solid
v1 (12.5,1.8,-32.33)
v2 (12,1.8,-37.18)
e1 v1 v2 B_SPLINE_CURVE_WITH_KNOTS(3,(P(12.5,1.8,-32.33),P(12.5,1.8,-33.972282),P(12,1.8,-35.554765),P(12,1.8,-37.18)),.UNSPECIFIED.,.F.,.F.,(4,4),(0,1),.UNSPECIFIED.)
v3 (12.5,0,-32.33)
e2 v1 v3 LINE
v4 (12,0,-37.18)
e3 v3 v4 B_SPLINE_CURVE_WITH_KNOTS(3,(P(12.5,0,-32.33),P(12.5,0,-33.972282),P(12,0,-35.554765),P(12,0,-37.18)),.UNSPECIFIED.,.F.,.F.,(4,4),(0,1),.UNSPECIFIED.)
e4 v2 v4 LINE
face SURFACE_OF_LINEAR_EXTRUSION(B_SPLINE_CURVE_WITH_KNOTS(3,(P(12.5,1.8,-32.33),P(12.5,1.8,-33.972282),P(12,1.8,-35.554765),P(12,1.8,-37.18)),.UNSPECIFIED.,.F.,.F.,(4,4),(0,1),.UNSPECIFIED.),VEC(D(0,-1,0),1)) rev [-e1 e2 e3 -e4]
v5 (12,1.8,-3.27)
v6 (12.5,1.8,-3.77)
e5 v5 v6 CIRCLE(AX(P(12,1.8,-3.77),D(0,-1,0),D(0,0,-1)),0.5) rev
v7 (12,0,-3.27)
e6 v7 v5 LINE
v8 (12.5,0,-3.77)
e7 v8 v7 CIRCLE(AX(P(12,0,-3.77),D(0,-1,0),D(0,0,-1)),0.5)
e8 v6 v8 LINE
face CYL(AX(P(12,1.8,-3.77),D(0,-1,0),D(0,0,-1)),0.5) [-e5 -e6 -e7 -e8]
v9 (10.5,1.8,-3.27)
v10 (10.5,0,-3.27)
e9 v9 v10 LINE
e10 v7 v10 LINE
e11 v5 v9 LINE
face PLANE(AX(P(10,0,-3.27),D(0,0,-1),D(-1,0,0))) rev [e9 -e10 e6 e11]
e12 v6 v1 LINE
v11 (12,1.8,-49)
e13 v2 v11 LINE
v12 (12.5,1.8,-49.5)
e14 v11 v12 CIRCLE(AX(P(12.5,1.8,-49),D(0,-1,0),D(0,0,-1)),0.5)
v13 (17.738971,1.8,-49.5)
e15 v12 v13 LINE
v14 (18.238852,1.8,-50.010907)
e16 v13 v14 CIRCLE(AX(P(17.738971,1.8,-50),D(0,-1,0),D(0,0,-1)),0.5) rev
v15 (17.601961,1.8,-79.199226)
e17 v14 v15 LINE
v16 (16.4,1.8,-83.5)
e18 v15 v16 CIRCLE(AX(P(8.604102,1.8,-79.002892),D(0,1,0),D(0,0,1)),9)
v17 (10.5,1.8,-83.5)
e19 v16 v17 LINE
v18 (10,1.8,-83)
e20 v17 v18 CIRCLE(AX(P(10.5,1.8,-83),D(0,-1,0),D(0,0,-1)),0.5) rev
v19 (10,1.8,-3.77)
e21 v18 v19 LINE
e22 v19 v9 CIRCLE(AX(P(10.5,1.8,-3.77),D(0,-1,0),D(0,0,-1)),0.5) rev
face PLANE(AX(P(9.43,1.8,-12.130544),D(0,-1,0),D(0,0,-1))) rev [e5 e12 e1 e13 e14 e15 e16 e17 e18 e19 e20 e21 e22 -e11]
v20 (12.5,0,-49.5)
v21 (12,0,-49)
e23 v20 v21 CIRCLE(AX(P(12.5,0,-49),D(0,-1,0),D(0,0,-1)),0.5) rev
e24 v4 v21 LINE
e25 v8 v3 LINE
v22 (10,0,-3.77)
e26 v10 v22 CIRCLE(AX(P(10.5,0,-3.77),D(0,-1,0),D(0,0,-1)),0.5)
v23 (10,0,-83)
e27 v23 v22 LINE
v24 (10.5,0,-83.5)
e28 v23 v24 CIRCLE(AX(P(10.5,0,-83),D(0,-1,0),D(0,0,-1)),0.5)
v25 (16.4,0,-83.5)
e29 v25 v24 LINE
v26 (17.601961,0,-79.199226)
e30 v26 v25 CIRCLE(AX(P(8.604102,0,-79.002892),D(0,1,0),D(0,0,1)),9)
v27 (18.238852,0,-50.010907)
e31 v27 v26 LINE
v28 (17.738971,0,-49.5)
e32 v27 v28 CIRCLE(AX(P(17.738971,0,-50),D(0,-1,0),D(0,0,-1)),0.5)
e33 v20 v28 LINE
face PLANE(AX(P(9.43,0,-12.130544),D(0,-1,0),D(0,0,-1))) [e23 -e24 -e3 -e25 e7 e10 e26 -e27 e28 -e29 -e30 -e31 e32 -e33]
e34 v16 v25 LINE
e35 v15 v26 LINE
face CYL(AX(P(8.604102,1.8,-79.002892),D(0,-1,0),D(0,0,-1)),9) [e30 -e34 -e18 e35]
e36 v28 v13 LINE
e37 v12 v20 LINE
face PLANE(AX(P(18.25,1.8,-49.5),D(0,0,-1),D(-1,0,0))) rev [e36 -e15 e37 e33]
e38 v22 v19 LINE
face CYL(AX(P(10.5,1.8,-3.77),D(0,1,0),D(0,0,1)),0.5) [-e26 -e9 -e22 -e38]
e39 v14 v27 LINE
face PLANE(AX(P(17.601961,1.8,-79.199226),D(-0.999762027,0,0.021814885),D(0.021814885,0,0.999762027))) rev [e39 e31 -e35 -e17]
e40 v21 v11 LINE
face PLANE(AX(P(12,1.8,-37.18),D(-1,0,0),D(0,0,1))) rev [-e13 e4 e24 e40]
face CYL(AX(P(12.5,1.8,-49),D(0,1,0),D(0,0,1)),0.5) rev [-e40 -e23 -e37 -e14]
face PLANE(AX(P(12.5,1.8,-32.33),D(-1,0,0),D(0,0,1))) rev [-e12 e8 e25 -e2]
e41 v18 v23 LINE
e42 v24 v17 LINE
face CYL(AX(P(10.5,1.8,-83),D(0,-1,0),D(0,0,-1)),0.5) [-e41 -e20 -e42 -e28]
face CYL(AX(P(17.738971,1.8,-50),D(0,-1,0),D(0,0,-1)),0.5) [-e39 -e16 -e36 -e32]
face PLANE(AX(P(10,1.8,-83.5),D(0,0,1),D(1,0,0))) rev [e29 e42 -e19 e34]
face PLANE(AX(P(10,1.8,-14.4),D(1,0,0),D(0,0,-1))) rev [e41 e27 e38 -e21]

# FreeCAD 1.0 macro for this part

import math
import FreeCAD as App
import Part
import Sketcher

V = App.Vector


def edges_at(feature, points):
    """Names of the edges that pass closest to the given points."""
    edges = feature.Shape.Edges
    near = lambda p: min(range(len(edges)), key=lambda i: edges[i].distToShape(Part.Vertex(*p))[0])
    return sorted({f"Edge{near(p) + 1}" for p in points})

doc = App.newDocument("Part")
body = doc.addObject("PartDesign::Body", "Body")

sketch1 = body.newObject("Sketcher::SketchObject", "Sketch")
sketch1.AttachmentSupport = (doc.getObject("XZ_Plane"), [""])
sketch1.MapMode = "FlatFace"
sketch1.addGeometry(Part.LineSegment(V(0, -6.5, 0), V(0, -4.5, 0)), False)
sketch1.addGeometry(Part.ArcOfCircle(Part.Circle(V(9.43, -12.130544, 0), V(0, 0, 1), 12.130544), math.radians(90), math.radians(141.020993)), False)
sketch1.addGeometry(Part.ArcOfCircle(Part.Circle(V(9.43, -3.07, 0), V(0, 0, 1), 3.07), math.radians(0), math.radians(90)), False)
sketch1.addGeometry(Part.LineSegment(V(12.5, -3.07, 0), V(12.5, -32.33, 0)), False)
sketch1.addGeometry(Part.BSplineCurve([V(12.5, -32.33, 0), V(12.5, -33.972282, 0), V(12, -35.554765, 0), V(12, -37.18, 0)], [4, 4], [0, 1], False, 3, [1, 1, 1, 1], False), False)
sketch1.addGeometry(Part.LineSegment(V(12, -37.18, 0), V(12, -49.5, 0)), False)
sketch1.addGeometry(Part.LineSegment(V(12, -49.5, 0), V(18.25, -49.5, 0)), False)
sketch1.addGeometry(Part.LineSegment(V(18.25, -49.5, 0), V(17.601961, -79.199226, 0)), False)
sketch1.addGeometry(Part.ArcOfCircle(Part.Circle(V(8.604102, -79.002892, 0), V(0, 0, 1), 9), math.radians(-29.978742), math.radians(-1.25)), False)
sketch1.addGeometry(Part.LineSegment(V(16.4, -83.5, 0), V(10, -83.5, 0)), False)
sketch1.addGeometry(Part.LineSegment(V(10, -83.5, 0), V(10, -14.4, 0)), False)
sketch1.addGeometry(Part.LineSegment(V(10, -14.4, 0), V(6.1, -10.5, 0)), False)
sketch1.addGeometry(Part.LineSegment(V(6.1, -10.5, 0), V(6.1, -6.5, 0)), False)
sketch1.addGeometry(Part.LineSegment(V(6.1, -6.5, 0), V(0, -6.5, 0)), False)
sketch1.addConstraint(Sketcher.Constraint("Block", 4))
sketch1.addConstraint(Sketcher.Constraint("Coincident", 0, 2, 1, 2))
sketch1.addConstraint(Sketcher.Constraint("Coincident", 1, 1, 2, 2))
sketch1.addConstraint(Sketcher.Constraint("Coincident", 2, 1, 3, 1))
sketch1.addConstraint(Sketcher.Constraint("Coincident", 3, 2, 4, 1))
sketch1.addConstraint(Sketcher.Constraint("Coincident", 4, 2, 5, 1))
sketch1.addConstraint(Sketcher.Constraint("Coincident", 5, 2, 6, 1))
sketch1.addConstraint(Sketcher.Constraint("Coincident", 6, 2, 7, 1))
sketch1.addConstraint(Sketcher.Constraint("Coincident", 7, 2, 8, 2))
sketch1.addConstraint(Sketcher.Constraint("Coincident", 8, 1, 9, 1))
sketch1.addConstraint(Sketcher.Constraint("Coincident", 9, 2, 10, 1))
sketch1.addConstraint(Sketcher.Constraint("Coincident", 10, 2, 11, 1))
sketch1.addConstraint(Sketcher.Constraint("Coincident", 11, 2, 12, 1))
sketch1.addConstraint(Sketcher.Constraint("Coincident", 12, 2, 13, 1))
sketch1.addConstraint(Sketcher.Constraint("Coincident", 13, 2, 0, 1))
sketch1.addConstraint(Sketcher.Constraint("Vertical", 0))
sketch1.addConstraint(Sketcher.Constraint("Vertical", 3))
sketch1.addConstraint(Sketcher.Constraint("Vertical", 5))
sketch1.addConstraint(Sketcher.Constraint("Horizontal", 6))
sketch1.addConstraint(Sketcher.Constraint("Horizontal", 9))
sketch1.addConstraint(Sketcher.Constraint("Vertical", 10))
sketch1.addConstraint(Sketcher.Constraint("Vertical", 12))
sketch1.addConstraint(Sketcher.Constraint("Horizontal", 13))
sketch1.addConstraint(Sketcher.Constraint("PointOnObject", 0, 2, -2))
sketch1.addConstraint(Sketcher.Constraint("PointOnObject", 1, 1, -1))
sketch1.addConstraint(Sketcher.Constraint("Radius", 8, 9.0))
sketch1.addConstraint(Sketcher.Constraint("DistanceY", 0, 1, 0, 2, 2.0))
sketch1.addConstraint(Sketcher.Constraint("DistanceY", 12, 1, 12, 2, 4.0))
sketch1.addConstraint(Sketcher.Constraint("Radius", 2, 3.07))
sketch1.addConstraint(Sketcher.Constraint("DistanceX", 9, 2, 9, 1, 6.4))
sketch1.addConstraint(Sketcher.Constraint("DistanceX", 13, 2, 13, 1, 6.1))
sketch1.addConstraint(Sketcher.Constraint("DistanceY", 10, 1, 10, 2, 69.1))
sketch1.addConstraint(Sketcher.Constraint("DistanceX", -1, 1, 9, 2, 10.0))
sketch1.addConstraint(Sketcher.Constraint("DistanceY", 8, 1, 6, 2, 34.0))
sketch1.addConstraint(Sketcher.Constraint("DistanceX", 6, 1, 6, 2, 6.25))
sketch1.addConstraint(Sketcher.Constraint("DistanceY", 3, 2, 3, 1, 29.26))
sketch1.addConstraint(Sketcher.Constraint("DistanceY", 5, 2, 5, 1, 12.32))
sketch1.addConstraint(Sketcher.Constraint("DistanceY", 0, 2, -1, 1, 4.5))
sketch1.addConstraint(Sketcher.Constraint("DistanceX", -1, 1, 1, 3, 9.43))
sketch1.addConstraint(Sketcher.Constraint("DistanceX", -1, 1, 1, 1, 9.43))
sketch1.addConstraint(Sketcher.Constraint("DistanceX", -1, 1, 7, 2, 17.601961))
sketch1.addConstraint(Sketcher.Constraint("DistanceX", 8, 3, 7, 2, 8.997858))
pad1 = body.newObject("PartDesign::Pad", "Pad")
pad1.Profile = sketch1
pad1.Length = 1.8
pad1.Reversed = True
doc.recompute()

fillet = body.newObject("PartDesign::Fillet", "Fillet")
fillet.Base = (pad1, edges_at(pad1, [
    (0, 0.9, -6.5),
    (6.1, 0.9, -6.5),
    (6.1, 0.9, -10.5),
    (10, 0.9, -14.4),
    (10, 0.9, -83.5),
    (18.25, 0.9, -49.5),
    (12, 0.9, -49.5),
]))
fillet.Radius = 0.5

sketch2 = body.newObject("Sketcher::SketchObject", "Sketch001")
sketch2.AttachmentSupport = (doc.getObject("XZ_Plane"), [""])
sketch2.MapMode = "FlatFace"
sketch2.addGeometry(Part.LineSegment(V(7, 2.5, 0), V(7, -0.5, 0)), False)
sketch2.addGeometry(Part.LineSegment(V(7, -0.5, 0), V(11, -0.5, 0)), False)
sketch2.addGeometry(Part.LineSegment(V(11, -0.5, 0), V(11.02, -0.44, 0)), False)
sketch2.addGeometry(Part.LineSegment(V(11.02, -0.44, 0), V(11.82, 1.58, 0)), False)
sketch2.addGeometry(Part.ArcOfCircle(Part.Circle(V(9.5, 2.5, 0), V(0, 0, 1), 2.5), math.radians(-22), math.radians(180)), False)
sketch2.addGeometry(Part.Circle(V(9.5, 2.5, 0), V(0, 0, 1), 1.75), False)
sketch2.addConstraint(Sketcher.Constraint("Coincident", 0, 2, 1, 1))
sketch2.addConstraint(Sketcher.Constraint("Coincident", 1, 2, 2, 1))
sketch2.addConstraint(Sketcher.Constraint("Coincident", 2, 2, 3, 1))
sketch2.addConstraint(Sketcher.Constraint("Tangent", 3, 2, 4, 1))
sketch2.addConstraint(Sketcher.Constraint("Tangent", 4, 2, 0, 1))
sketch2.addConstraint(Sketcher.Constraint("Vertical", 0))
sketch2.addConstraint(Sketcher.Constraint("Horizontal", 1))
sketch2.addConstraint(Sketcher.Constraint("Coincident", 5, 3, 4, 3))
sketch2.addConstraint(Sketcher.Constraint("Parallel", 2, 3))
sketch2.addConstraint(Sketcher.Constraint("Diameter", 5, 3.5))
sketch2.addConstraint(Sketcher.Constraint("Radius", 4, 2.5))
sketch2.addConstraint(Sketcher.Constraint("DistanceX", 1, 1, 1, 2, 4.0))
sketch2.addConstraint(Sketcher.Constraint("DistanceY", 0, 2, 0, 1, 3.0))
sketch2.addConstraint(Sketcher.Constraint("DistanceX", -1, 1, 0, 2, 7.0))
sketch2.addConstraint(Sketcher.Constraint("Distance", 2, 0.059381))
sketch2.addConstraint(Sketcher.Constraint("DistanceY", -1, 1, 3, 2, 1.578522))
pad2 = body.newObject("PartDesign::Pad", "Pad001")
pad2.Profile = sketch2
pad2.Length = 1.8
pad2.Reversed = True
doc.recompute()

fillet2 = body.newObject("PartDesign::Fillet", "Fillet001")
fillet2.Base = (pad2, edges_at(pad2, [(7, 0.9, -0.246), (11.022, 0.9, -0.445)]))
fillet2.Radius = 1

sketch3 = body.newObject("Sketcher::SketchObject", "Sketch002")
sketch3.AttachmentSupport = (doc.getObject("XZ_Plane"), [""])
sketch3.MapMode = "FlatFace"
sketch3.AttachmentOffset = App.Placement(V(0, 0, -1.8), App.Rotation())
sketch3.addGeometry(Part.LineSegment(V(10, -3.3, 0), V(10, -18.9, 0)), False)
sketch3.addGeometry(Part.LineSegment(V(10, -18.9, 0), V(-3.4, -18.9, 0)), False)
sketch3.addGeometry(Part.LineSegment(V(-3.4, -18.9, 0), V(-3.4, 6.7, 0)), False)
sketch3.addGeometry(Part.LineSegment(V(-3.4, 6.7, 0), V(13.6, 6.7, 0)), False)
sketch3.addGeometry(Part.LineSegment(V(13.6, 6.7, 0), V(13.6, -3.3, 0)), False)
sketch3.addGeometry(Part.LineSegment(V(13.6, -3.3, 0), V(10, -3.3, 0)), False)
sketch3.addConstraint(Sketcher.Constraint("Coincident", 0, 2, 1, 1))
sketch3.addConstraint(Sketcher.Constraint("Coincident", 1, 2, 2, 1))
sketch3.addConstraint(Sketcher.Constraint("Coincident", 2, 2, 3, 1))
sketch3.addConstraint(Sketcher.Constraint("Coincident", 3, 2, 4, 1))
sketch3.addConstraint(Sketcher.Constraint("Coincident", 4, 2, 5, 1))
sketch3.addConstraint(Sketcher.Constraint("Coincident", 5, 2, 0, 1))
sketch3.addConstraint(Sketcher.Constraint("Vertical", 0))
sketch3.addConstraint(Sketcher.Constraint("Horizontal", 1))
sketch3.addConstraint(Sketcher.Constraint("Vertical", 2))
sketch3.addConstraint(Sketcher.Constraint("Horizontal", 3))
sketch3.addConstraint(Sketcher.Constraint("Vertical", 4))
sketch3.addConstraint(Sketcher.Constraint("Horizontal", 5))
sketch3.addConstraint(Sketcher.Constraint("DistanceX", -1, 1, 0, 2, 10.0))
sketch3.addConstraint(Sketcher.Constraint("DistanceY", 4, 2, -1, 1, 3.27))
sketch3.addConstraint(Sketcher.Constraint("DistanceX", 1, 2, 1, 1, 13.427549))
sketch3.addConstraint(Sketcher.Constraint("DistanceY", 0, 2, 0, 1, 15.611661))
sketch3.addConstraint(Sketcher.Constraint("DistanceX", 3, 1, 3, 2, 17.045896))
sketch3.addConstraint(Sketcher.Constraint("DistanceY", 2, 1, 2, 2, 25.568844))
pocket1 = body.newObject("PartDesign::Pocket", "Pocket")
pocket1.Profile = sketch3
pocket1.Type = "ThroughAll"
pocket1.Reversed = True
doc.recompute()

fillet3 = body.newObject("PartDesign::Fillet", "Fillet002")
fillet3.Base = (pocket1, edges_at(pocket1, [(12.5, 0.9, -3.27), (10, 0.9, -3.27)]))
fillet3.Radius = 0.5

doc.recompute()
